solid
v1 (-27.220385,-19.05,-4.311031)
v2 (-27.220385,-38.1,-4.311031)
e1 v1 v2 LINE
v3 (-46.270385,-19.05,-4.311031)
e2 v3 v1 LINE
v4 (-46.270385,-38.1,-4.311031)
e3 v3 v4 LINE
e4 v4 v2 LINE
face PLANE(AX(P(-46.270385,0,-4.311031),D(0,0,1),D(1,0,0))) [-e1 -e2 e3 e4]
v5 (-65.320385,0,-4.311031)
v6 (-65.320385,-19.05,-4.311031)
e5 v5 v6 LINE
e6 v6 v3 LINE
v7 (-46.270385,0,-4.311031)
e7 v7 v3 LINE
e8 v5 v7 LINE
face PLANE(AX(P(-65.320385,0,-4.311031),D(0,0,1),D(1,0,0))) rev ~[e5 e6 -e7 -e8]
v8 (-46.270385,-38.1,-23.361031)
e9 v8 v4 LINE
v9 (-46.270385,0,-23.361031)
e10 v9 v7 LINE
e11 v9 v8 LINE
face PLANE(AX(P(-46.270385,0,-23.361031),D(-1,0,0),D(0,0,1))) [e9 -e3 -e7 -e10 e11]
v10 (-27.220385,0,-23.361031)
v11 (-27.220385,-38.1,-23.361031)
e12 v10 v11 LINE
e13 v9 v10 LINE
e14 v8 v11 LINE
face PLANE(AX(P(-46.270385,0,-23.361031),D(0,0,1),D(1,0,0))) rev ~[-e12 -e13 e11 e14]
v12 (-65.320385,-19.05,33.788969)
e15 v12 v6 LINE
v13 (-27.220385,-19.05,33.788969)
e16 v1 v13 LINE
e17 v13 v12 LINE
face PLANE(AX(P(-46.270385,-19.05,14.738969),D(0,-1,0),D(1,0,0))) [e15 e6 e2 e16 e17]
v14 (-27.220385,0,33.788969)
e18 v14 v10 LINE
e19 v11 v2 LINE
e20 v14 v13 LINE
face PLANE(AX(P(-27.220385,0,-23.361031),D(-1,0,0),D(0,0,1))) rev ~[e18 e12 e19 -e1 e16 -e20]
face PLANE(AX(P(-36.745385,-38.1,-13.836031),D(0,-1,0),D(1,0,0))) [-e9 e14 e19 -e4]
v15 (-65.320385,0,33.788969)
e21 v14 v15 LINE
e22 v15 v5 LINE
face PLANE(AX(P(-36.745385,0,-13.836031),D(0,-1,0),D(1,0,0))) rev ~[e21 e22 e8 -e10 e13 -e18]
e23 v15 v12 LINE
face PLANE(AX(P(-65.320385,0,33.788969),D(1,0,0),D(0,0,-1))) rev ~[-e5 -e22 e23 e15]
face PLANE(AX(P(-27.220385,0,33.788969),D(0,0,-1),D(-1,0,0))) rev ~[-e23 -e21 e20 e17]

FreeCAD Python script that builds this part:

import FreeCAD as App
import Part
import Sketcher
Q = App.Units.Quantity


def add_polygon(sketch, points):
    """Adds a closed chain of lines whose ends are joined by coincident constraints."""
    first, n = sketch.GeometryCount, len(points)
    for a, b in zip(points, points[1:] + points[:1]):
        sketch.addGeometry(Part.LineSegment(App.Vector(*a, 0), App.Vector(*b, 0)), False)
    for i in range(n):
        sketch.addConstraint(Sketcher.Constraint("Coincident", first + i, 2, first + (i + 1) % n, 1))

doc = App.newDocument("Part")
body = doc.addObject("PartDesign::Body", "Body")

# Sketch on XZ plane
sketch1 = body.newObject("Sketcher::SketchObject", "Sketch")
sketch1.AttachmentSupport = (doc.getObject("XZ_Plane"), [""])
sketch1.MapMode = "FlatFace"
add_polygon(sketch1, [(-27, -4), (-27, 34), (-65, 34), (-65, -4)])  # lines 0-3
sketch1.addConstraint([
    Sketcher.Constraint("Vertical", 0),
    Sketcher.Constraint("Horizontal", 1),
    Sketcher.Constraint("Vertical", 2),
    Sketcher.Constraint("Horizontal", 3),
    Sketcher.Constraint("Equal", 3, 0),
    Sketcher.Constraint("DistanceX", 1, 2, 1, 1, Q("1.5 in")),
    Sketcher.Constraint("DistanceY", -1, 1, 0, 2, 33.788969),
    Sketcher.Constraint("DistanceX", 0, 2, -1, 1, 27.220385),
])
pad1 = body.newObject("PartDesign::Pad", "Pad")
pad1.Profile = sketch1
pad1.Length = Q("0.75 in")

# Sketch on XZ plane
sketch2 = body.newObject("Sketcher::SketchObject", "Sketch001")
sketch2.AttachmentSupport = (doc.getObject("XZ_Plane"), [""])
sketch2.MapMode = "FlatFace"
add_polygon(sketch2, [(-46, -4), (-46, -23), (-27, -23), (-27, -4)])  # lines 0-3
sketch2.addConstraint([
    Sketcher.Constraint("Vertical", 0),
    Sketcher.Constraint("Horizontal", 1),
    Sketcher.Constraint("Vertical", 2),
    Sketcher.Constraint("Horizontal", 3),
    Sketcher.Constraint("Equal", 3, 0),
    Sketcher.Constraint("DistanceX", 1, 1, 1, 2, Q("0.75 in")),
    Sketcher.Constraint("DistanceY", 0, 2, -1, 1, 23.361031),
    Sketcher.Constraint("DistanceX", 0, 2, -1, 1, 46.270385),
])
pad2 = body.newObject("PartDesign::Pad", "Pad001")
pad2.Profile = sketch2
pad2.Length = Q("1.5 in")

doc.recompute()
